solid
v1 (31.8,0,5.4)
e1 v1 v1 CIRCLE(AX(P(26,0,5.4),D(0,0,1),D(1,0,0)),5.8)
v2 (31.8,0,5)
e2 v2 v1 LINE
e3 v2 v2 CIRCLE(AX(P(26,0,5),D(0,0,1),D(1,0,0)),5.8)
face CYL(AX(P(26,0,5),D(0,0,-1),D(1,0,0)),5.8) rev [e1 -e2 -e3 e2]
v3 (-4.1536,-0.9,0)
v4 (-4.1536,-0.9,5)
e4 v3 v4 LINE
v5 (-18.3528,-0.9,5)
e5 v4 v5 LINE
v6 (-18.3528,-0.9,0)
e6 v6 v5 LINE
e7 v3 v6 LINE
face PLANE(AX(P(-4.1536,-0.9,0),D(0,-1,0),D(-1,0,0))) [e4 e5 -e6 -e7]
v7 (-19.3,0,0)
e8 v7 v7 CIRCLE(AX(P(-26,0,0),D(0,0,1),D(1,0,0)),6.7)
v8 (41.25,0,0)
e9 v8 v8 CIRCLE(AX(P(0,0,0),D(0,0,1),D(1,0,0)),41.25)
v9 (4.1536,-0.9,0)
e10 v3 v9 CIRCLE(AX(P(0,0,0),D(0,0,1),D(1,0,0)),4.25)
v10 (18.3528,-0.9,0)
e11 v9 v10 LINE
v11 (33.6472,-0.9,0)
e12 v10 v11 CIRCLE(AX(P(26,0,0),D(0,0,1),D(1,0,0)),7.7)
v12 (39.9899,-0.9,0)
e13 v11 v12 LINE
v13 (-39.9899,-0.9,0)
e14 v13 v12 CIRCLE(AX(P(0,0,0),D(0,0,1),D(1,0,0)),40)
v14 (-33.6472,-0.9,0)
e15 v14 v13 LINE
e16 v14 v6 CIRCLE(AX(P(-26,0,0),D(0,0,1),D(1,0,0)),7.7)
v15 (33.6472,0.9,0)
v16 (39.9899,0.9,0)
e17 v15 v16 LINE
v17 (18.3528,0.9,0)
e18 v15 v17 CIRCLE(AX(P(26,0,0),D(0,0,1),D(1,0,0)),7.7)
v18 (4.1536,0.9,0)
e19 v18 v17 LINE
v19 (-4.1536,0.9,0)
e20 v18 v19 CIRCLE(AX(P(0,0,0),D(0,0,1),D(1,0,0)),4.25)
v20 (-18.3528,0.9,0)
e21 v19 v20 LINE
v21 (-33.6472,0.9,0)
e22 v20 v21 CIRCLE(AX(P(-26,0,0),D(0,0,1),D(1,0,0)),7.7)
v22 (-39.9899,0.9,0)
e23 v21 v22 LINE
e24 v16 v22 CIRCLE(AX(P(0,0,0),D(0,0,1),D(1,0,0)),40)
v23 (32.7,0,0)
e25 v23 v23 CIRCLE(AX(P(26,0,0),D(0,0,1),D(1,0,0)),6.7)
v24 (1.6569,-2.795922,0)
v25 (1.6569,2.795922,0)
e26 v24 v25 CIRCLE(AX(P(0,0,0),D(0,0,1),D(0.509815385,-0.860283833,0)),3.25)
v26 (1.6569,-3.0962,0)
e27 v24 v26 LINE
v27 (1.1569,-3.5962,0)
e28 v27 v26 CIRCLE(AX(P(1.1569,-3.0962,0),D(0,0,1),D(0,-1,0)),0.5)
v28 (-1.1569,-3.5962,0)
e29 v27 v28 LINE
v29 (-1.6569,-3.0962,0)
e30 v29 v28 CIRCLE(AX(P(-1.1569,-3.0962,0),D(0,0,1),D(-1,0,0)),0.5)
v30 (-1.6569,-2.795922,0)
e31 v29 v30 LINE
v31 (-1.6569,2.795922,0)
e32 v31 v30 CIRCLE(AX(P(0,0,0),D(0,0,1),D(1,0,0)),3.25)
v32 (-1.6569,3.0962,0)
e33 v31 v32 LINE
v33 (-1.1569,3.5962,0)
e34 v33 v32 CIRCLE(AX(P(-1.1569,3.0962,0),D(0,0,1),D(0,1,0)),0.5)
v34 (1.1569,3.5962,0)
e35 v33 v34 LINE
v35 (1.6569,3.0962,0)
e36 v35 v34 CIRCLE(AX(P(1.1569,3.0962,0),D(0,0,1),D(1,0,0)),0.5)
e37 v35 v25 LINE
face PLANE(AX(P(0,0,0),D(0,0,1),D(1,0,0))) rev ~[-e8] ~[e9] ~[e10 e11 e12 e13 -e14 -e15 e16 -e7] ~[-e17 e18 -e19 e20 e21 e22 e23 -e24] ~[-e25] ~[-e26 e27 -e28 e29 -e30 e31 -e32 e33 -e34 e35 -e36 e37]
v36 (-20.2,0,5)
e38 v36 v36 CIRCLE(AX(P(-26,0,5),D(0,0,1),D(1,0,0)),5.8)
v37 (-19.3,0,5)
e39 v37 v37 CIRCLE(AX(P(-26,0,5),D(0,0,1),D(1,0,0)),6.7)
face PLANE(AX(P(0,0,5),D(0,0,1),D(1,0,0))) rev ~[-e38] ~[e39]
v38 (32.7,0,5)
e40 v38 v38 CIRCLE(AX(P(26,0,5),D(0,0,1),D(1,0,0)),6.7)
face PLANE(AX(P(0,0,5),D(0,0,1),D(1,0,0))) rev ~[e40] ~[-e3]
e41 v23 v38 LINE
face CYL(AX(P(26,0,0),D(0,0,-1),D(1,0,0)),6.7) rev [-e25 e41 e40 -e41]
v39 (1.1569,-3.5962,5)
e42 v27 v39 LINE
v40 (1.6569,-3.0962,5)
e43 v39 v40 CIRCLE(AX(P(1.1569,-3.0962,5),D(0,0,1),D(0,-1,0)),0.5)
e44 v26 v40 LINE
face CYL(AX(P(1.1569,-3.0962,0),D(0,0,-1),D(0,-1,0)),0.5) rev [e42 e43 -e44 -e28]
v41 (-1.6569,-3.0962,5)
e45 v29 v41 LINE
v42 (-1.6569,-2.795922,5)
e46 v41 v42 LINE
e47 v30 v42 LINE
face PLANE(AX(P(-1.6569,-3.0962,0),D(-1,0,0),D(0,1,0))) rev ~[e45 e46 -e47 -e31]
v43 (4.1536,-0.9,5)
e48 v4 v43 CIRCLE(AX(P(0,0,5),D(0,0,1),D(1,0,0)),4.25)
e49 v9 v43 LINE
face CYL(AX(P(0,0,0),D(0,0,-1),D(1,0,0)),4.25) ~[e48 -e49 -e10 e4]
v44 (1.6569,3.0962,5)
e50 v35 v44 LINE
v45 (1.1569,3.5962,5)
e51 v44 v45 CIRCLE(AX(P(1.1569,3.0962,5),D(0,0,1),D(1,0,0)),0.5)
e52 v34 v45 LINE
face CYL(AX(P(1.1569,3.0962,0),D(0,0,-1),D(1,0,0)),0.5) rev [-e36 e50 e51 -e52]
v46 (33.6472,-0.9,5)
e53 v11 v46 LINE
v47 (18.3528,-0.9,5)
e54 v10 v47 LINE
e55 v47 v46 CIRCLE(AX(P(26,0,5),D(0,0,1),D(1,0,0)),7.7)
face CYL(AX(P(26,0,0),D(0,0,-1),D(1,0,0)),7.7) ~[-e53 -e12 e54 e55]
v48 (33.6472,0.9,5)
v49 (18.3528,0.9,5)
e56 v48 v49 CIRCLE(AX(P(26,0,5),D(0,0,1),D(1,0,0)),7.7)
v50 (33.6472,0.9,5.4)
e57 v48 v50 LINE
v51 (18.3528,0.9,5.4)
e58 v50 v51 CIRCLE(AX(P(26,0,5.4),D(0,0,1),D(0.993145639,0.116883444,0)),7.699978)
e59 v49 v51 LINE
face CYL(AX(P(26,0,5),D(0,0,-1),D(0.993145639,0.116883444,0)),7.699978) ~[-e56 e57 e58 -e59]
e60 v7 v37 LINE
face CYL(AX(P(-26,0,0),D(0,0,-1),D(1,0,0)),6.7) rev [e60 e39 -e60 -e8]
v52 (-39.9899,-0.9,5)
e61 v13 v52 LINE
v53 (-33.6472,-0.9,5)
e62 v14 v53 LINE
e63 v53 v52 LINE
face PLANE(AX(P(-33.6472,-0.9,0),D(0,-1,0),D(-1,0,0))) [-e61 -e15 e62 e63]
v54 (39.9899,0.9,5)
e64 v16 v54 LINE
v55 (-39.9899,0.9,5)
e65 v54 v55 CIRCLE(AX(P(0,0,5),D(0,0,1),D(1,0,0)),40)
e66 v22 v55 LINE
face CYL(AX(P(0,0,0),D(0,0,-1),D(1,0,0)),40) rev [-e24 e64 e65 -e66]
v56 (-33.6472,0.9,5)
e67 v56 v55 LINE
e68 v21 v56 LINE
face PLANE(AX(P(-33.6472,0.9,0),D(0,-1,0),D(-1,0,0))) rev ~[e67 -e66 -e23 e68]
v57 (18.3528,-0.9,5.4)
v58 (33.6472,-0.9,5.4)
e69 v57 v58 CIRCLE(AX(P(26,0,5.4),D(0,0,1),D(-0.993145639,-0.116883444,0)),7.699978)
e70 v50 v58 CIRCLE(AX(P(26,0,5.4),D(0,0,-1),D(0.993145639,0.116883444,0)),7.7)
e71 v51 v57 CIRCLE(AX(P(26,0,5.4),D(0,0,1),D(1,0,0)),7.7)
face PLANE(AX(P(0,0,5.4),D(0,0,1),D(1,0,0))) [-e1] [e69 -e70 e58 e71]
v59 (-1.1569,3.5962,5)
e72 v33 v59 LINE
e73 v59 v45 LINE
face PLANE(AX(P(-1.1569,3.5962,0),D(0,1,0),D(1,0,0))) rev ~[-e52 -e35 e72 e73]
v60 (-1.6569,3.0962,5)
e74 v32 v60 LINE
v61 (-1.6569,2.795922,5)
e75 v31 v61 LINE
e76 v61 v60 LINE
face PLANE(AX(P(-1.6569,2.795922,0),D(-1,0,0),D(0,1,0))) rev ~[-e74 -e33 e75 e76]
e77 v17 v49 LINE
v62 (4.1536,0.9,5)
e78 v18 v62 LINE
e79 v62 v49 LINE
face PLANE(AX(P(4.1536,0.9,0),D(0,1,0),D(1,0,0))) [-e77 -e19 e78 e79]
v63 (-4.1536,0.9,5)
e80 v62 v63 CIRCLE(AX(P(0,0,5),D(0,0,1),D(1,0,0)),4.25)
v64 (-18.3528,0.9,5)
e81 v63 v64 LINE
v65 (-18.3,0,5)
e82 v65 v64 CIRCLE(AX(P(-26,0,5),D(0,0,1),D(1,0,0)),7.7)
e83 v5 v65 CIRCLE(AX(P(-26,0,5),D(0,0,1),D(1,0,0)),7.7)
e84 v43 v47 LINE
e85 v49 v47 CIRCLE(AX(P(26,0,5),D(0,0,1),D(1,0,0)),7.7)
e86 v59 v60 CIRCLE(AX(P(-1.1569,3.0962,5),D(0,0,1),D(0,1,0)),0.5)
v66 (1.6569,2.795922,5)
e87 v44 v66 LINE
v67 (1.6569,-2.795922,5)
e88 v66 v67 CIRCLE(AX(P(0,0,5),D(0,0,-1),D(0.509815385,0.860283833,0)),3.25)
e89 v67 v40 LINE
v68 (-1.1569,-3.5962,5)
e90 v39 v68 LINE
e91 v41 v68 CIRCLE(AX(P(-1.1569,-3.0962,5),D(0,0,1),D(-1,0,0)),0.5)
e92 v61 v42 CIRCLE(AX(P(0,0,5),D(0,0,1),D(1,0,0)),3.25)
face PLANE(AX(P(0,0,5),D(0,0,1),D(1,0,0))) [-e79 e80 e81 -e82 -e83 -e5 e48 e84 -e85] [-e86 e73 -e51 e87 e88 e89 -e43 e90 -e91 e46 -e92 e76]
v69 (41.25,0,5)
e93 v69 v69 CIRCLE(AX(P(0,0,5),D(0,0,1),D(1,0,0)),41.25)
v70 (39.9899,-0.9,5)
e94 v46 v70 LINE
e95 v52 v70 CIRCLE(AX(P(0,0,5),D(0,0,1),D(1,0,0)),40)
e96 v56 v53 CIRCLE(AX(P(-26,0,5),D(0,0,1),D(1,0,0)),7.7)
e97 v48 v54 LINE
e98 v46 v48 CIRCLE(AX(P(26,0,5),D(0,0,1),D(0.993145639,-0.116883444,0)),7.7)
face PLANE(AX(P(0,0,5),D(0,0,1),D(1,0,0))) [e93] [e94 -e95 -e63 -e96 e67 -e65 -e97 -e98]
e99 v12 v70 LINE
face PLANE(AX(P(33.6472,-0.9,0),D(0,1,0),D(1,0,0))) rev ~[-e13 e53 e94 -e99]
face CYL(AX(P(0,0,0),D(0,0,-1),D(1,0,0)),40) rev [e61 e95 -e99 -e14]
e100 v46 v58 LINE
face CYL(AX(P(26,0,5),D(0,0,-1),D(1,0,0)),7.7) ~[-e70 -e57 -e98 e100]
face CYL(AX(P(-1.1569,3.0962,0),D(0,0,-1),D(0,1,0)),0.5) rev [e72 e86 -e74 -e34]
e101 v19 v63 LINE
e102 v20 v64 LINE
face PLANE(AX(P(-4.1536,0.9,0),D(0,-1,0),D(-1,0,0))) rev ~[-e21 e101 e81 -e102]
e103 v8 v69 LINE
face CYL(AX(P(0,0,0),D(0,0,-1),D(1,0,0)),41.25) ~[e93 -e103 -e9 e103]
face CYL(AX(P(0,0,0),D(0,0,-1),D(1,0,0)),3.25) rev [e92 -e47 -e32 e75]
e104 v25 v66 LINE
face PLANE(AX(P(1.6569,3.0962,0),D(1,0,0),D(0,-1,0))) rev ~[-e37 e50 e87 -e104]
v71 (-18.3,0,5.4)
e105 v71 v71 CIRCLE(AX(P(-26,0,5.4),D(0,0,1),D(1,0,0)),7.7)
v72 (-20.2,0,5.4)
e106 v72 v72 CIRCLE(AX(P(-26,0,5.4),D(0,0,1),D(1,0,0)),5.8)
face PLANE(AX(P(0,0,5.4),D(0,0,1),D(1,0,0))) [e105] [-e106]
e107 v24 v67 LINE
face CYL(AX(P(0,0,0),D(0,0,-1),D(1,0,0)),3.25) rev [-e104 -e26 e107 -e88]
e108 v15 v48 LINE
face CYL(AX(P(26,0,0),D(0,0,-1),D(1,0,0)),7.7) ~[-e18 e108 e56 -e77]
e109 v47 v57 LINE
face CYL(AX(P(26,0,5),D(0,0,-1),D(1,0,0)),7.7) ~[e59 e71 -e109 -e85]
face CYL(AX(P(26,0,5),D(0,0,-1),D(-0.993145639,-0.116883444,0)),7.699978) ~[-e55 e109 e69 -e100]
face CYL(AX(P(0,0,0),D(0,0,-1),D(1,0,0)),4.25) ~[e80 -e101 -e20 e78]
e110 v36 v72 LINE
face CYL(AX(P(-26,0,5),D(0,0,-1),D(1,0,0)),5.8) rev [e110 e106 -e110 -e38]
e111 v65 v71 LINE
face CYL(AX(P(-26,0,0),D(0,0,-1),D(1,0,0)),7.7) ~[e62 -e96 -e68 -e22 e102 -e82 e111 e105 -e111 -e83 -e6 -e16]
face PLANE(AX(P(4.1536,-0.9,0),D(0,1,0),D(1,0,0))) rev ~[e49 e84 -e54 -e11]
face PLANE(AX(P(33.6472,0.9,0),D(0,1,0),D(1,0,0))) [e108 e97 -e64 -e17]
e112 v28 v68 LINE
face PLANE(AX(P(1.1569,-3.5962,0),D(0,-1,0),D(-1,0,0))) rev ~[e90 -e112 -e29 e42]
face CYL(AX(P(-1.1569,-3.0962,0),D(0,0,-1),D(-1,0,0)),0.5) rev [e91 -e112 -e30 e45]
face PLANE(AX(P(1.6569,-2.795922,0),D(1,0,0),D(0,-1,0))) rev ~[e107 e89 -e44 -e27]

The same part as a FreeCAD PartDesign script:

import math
import FreeCAD as App
import Part
import Sketcher

V = App.Vector

doc = App.newDocument("Part")
body = doc.addObject("PartDesign::Body", "Body")

sketch1 = doc.addObject("Sketcher::SketchObject", "Sketch")
body.addObject(sketch1)
sketch1.AttachmentSupport = (doc.XY_Plane, [""])
sketch1.MapMode = "FlatFace"
sketch1.addGeometry([
    Part.Circle(V(0, 0, 0), V(0, 0, 1), 41.25),
    Part.LineSegment(V(33.65, -0.9, 0), V(39.99, -0.9, 0)),
    Part.ArcOfCircle(Part.Circle(V(0, 0, 0), V(0, 0, 1), 40), math.radians(-179), math.radians(-1)),
    Part.LineSegment(V(-39.99, -0.9, 0), V(-33.65, -0.9, 0)),
    Part.ArcOfCircle(Part.Circle(V(-26, 0, 0), V(0, 0, 1), 7.7), math.radians(-173), math.radians(-7)),
    Part.LineSegment(V(-18.35, -0.9, 0), V(-4.15, -0.9, 0)),
    Part.ArcOfCircle(Part.Circle(V(0, 0, 0), V(0, 0, 1), 4.25), math.radians(-168), math.radians(-12)),
    Part.LineSegment(V(4.15, -0.9, 0), V(18.35, -0.9, 0)),
    Part.ArcOfCircle(Part.Circle(V(26, 0, 0), V(0, 0, 1), 7.7), math.radians(-173), math.radians(-7)),
    Part.LineSegment(V(39.99, 0.9, 0), V(33.65, 0.9, 0)),
    Part.ArcOfCircle(Part.Circle(V(26, 0, 0), V(0, 0, 1), 7.7), math.radians(7), math.radians(173)),
    Part.LineSegment(V(18.35, 0.9, 0), V(4.15, 0.9, 0)),
    Part.ArcOfCircle(Part.Circle(V(0, 0, 0), V(0, 0, 1), 4.25), math.radians(12), math.radians(168)),
    Part.LineSegment(V(-4.15, 0.9, 0), V(-18.35, 0.9, 0)),
    Part.ArcOfCircle(Part.Circle(V(-26, 0, 0), V(0, 0, 1), 7.7), math.radians(7), math.radians(173)),
    Part.LineSegment(V(-33.65, 0.9, 0), V(-39.99, 0.9, 0)),
    Part.ArcOfCircle(Part.Circle(V(0, 0, 0), V(0, 0, 1), 40), math.radians(1), math.radians(179)),
    Part.Circle(V(26, 0, 0), V(0, 0, 1), 6.7),
    Part.Circle(V(-26, 0, 0), V(0, 0, 1), 6.7),
    Part.LineSegment(V(1.66, -2.8, 0), V(1.66, -3.1, 0)),
    Part.ArcOfCircle(Part.Circle(V(1.16, -3.1, 0), V(0, 0, 1), 0.5), math.radians(-90), math.radians(0)),
    Part.LineSegment(V(1.16, -3.6, 0), V(-1.16, -3.6, 0)),
    Part.ArcOfCircle(Part.Circle(V(-1.16, -3.1, 0), V(0, 0, 1), 0.5), math.radians(180), math.radians(270)),
    Part.LineSegment(V(-1.66, -3.1, 0), V(-1.66, -2.8, 0)),
    Part.ArcOfCircle(Part.Circle(V(0, 0, 0), V(0, 0, 1), 3.25), math.radians(121), math.radians(239)),
    Part.LineSegment(V(-1.66, 2.8, 0), V(-1.66, 3.1, 0)),
    Part.ArcOfCircle(Part.Circle(V(-1.16, 3.1, 0), V(0, 0, 1), 0.5), math.radians(90), math.radians(180)),
    Part.LineSegment(V(-1.16, 3.6, 0), V(1.16, 3.6, 0)),
    Part.ArcOfCircle(Part.Circle(V(1.16, 3.1, 0), V(0, 0, 1), 0.5), math.radians(0), math.radians(90)),
    Part.LineSegment(V(1.66, 3.1, 0), V(1.66, 2.8, 0)),
    Part.ArcOfCircle(Part.Circle(V(0, 0, 0), V(0, 0, 1), 3.25), math.radians(-59), math.radians(59)),
], False)
sketch1.addConstraint([
    Sketcher.Constraint("Coincident", 1, 2, 2, 2),
    Sketcher.Constraint("Coincident", 2, 1, 3, 1),
    Sketcher.Constraint("Coincident", 3, 2, 4, 1),
    Sketcher.Constraint("Coincident", 4, 2, 5, 1),
    Sketcher.Constraint("Coincident", 5, 2, 6, 1),
    Sketcher.Constraint("Coincident", 6, 2, 7, 1),
    Sketcher.Constraint("Coincident", 7, 2, 8, 1),
    Sketcher.Constraint("Coincident", 8, 2, 1, 1),
    Sketcher.Constraint("Coincident", 9, 2, 10, 1),
    Sketcher.Constraint("Coincident", 10, 2, 11, 1),
    Sketcher.Constraint("Coincident", 11, 2, 12, 1),
    Sketcher.Constraint("Coincident", 12, 2, 13, 1),
    Sketcher.Constraint("Coincident", 13, 2, 14, 1),
    Sketcher.Constraint("Coincident", 14, 2, 15, 1),
    Sketcher.Constraint("Coincident", 15, 2, 16, 2),
    Sketcher.Constraint("Coincident", 16, 1, 9, 1),
    Sketcher.Constraint("Tangent", 19, 2, 20, 2),
    Sketcher.Constraint("Tangent", 20, 1, 21, 1),
    Sketcher.Constraint("Tangent", 21, 2, 22, 2),
    Sketcher.Constraint("Tangent", 22, 1, 23, 1),
    Sketcher.Constraint("Coincident", 23, 2, 24, 2),
    Sketcher.Constraint("Coincident", 24, 1, 25, 1),
    Sketcher.Constraint("Tangent", 25, 2, 26, 2),
    Sketcher.Constraint("Tangent", 26, 1, 27, 1),
    Sketcher.Constraint("Tangent", 27, 2, 28, 2),
    Sketcher.Constraint("Tangent", 28, 1, 29, 1),
    Sketcher.Constraint("Coincident", 29, 2, 30, 2),
    Sketcher.Constraint("Coincident", 30, 1, 19, 1),
    Sketcher.Constraint("Horizontal", 1),
    Sketcher.Constraint("Horizontal", 3),
    Sketcher.Constraint("Horizontal", 5),
    Sketcher.Constraint("Horizontal", 7),
    Sketcher.Constraint("Horizontal", 9),
    Sketcher.Constraint("Horizontal", 11),
    Sketcher.Constraint("Horizontal", 13),
    Sketcher.Constraint("Horizontal", 15),
    Sketcher.Constraint("Vertical", 19),
    Sketcher.Constraint("Horizontal", 21),
    Sketcher.Constraint("Vertical", 23),
    Sketcher.Constraint("Vertical", 25),
    Sketcher.Constraint("Horizontal", 27),
    Sketcher.Constraint("Vertical", 29),
    Sketcher.Constraint("Coincident", 0, 3, -1, 1),
    Sketcher.Constraint("Coincident", 2, 3, -1, 1),
    Sketcher.Constraint("Coincident", 6, 3, -1, 1),
    Sketcher.Constraint("Coincident", 12, 3, -1, 1),
    Sketcher.Constraint("Coincident", 16, 3, -1, 1),
    Sketcher.Constraint("Coincident", 24, 3, -1, 1),
    Sketcher.Constraint("Coincident", 30, 3, -1, 1),
    Sketcher.Constraint("Coincident", 10, 3, 8, 3),
    Sketcher.Constraint("Coincident", 14, 3, 4, 3),
    Sketcher.Constraint("Coincident", 17, 3, 8, 3),
    Sketcher.Constraint("Coincident", 18, 3, 4, 3),
    Sketcher.Constraint("Equal", 4, 8),
    Sketcher.Constraint("Equal", 8, 10),
    Sketcher.Constraint("Equal", 6, 12),
    Sketcher.Constraint("Equal", 10, 14),
    Sketcher.Constraint("Equal", 2, 16),
    Sketcher.Constraint("Equal", 17, 18),
    Sketcher.Constraint("Equal", 20, 22),
    Sketcher.Constraint("Equal", 22, 26),
    Sketcher.Constraint("Equal", 26, 28),
    Sketcher.Constraint("Equal", 24, 30),
    Sketcher.Constraint("Symmetric", 4, 3, 8, 3, -1, 1),
    Sketcher.Constraint("Symmetric", 20, 3, 26, 3, -1, 1),
    Sketcher.Constraint("Symmetric", 4, 2, 7, 2, -2),
    Sketcher.Constraint("Horizontal", 1, 2, 2, 1),
    Sketcher.Constraint("Horizontal", 3, 2, 4, 2),
    Sketcher.Constraint("Horizontal", 9, 2, 10, 2),
    Sketcher.Constraint("Horizontal", 11, 2, 12, 2),
    Sketcher.Constraint("Horizontal", 13, 2, 14, 2),
    Sketcher.Constraint("Horizontal", 24, 1, 29, 2),
    Sketcher.Constraint("Horizontal", 23, 2, 30, 1),
    Sketcher.Constraint("Vertical", 8, 2, 9, 2),
    Sketcher.Constraint("Radius", 2, 40.0),
    Sketcher.Constraint("Diameter", 0, 82.5),
    Sketcher.Constraint("Diameter", 17, 13.4),
    Sketcher.Constraint("Radius", 4, 7.7),
    Sketcher.Constraint("Radius", 20, 0.5),
    Sketcher.Constraint("Radius", 6, 4.25),
    Sketcher.Constraint("Radius", 24, 3.25),
    Sketcher.Constraint("DistanceX", 4, 3, -1, 1, 26.0),
    Sketcher.Constraint("DistanceY", 1, 2, -1, 1, 0.9),
    Sketcher.Constraint("DistanceX", 22, 1, 19, 2, 3.3138),
    Sketcher.Constraint("DistanceY", 19, 2, 19, 1, 0.3003),
])
pad1 = doc.addObject("PartDesign::Pad", "Pad")
body.addObject(pad1)
pad1.Profile = sketch1
pad1.Length = 5

sketch2 = doc.addObject("Sketcher::SketchObject", "Sketch001")
body.addObject(sketch2)
sketch2.AttachmentSupport = (doc.XY_Plane, [""])
sketch2.MapMode = "FlatFace"
sketch2.AttachmentOffset = App.Placement(V(0, 0, 5), App.Rotation())
sketch2.addGeometry([
    Part.Circle(V(26, 0, 0), V(0, 0, 1), 8),
    Part.Circle(V(26, 0, 0), V(0, 0, 1), 6),
    Part.Circle(V(-26, 0, 0), V(0, 0, 1), 8),
    Part.Circle(V(-26, 0, 0), V(0, 0, 1), 6),
], False)
sketch2.addConstraint([
    Sketcher.Constraint("Coincident", 1, 3, 0, 3),
    Sketcher.Constraint("Coincident", 3, 3, 2, 3),
    Sketcher.Constraint("Equal", 0, 2),
    Sketcher.Constraint("Equal", 1, 3),
    Sketcher.Constraint("Symmetric", 0, 3, 2, 3, -1, 1),
    Sketcher.Constraint("PointOnObject", 0, 3, -1),
    Sketcher.Constraint("Diameter", 0, 15.4),
    Sketcher.Constraint("Diameter", 1, 11.6),
    Sketcher.Constraint("DistanceX", -1, 1, 0, 3, 26.0),
])
pad2 = doc.addObject("PartDesign::Pad", "Pad001")
body.addObject(pad2)
pad2.Profile = sketch2
pad2.Length = 0.4

doc.recompute()
